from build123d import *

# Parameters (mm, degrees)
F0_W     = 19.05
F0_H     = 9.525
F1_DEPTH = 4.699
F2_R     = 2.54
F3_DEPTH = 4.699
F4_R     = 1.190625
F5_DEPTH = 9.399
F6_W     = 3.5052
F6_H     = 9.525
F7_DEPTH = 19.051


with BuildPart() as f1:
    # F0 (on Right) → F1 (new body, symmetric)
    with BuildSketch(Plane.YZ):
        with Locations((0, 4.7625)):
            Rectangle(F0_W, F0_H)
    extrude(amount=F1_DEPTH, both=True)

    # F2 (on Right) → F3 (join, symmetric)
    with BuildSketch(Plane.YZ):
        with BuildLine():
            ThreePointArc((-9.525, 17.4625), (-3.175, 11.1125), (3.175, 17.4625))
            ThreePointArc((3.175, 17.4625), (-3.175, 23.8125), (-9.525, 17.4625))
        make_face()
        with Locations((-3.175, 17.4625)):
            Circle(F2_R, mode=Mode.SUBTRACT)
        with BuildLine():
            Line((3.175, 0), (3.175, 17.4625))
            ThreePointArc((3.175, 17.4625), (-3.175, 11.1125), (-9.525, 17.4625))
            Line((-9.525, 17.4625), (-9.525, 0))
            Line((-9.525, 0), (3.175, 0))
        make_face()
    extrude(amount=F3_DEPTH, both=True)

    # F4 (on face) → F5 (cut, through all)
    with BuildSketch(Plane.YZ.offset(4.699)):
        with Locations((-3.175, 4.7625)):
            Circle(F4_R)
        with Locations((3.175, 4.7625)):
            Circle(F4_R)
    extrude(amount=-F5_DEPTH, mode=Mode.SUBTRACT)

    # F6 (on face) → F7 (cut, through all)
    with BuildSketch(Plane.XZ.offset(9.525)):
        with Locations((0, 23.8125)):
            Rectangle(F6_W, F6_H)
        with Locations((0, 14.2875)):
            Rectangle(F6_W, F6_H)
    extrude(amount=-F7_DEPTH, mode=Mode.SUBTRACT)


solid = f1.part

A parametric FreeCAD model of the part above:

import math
import FreeCAD as App
import Part
import Sketcher

V = App.Vector
Q = App.Units.Quantity

doc = App.newDocument("Part")
body = doc.addObject("PartDesign::Body", "Body")

sketch1 = body.newObject("Sketcher::SketchObject", "Sketch")
sketch1.AttachmentSupport = (doc.getObject("YZ_Plane"), [""])
sketch1.MapMode = "FlatFace"
sketch1.addGeometry([
    Part.LineSegment(V(-10, 10, 0), V(-10, 0, 0)),
    Part.LineSegment(V(-10, 0, 0), V(10, 0, 0)),
    Part.LineSegment(V(10, 0, 0), V(10, 10, 0)),
    Part.LineSegment(V(10, 10, 0), V(-10, 10, 0)),
], False)
sketch1.addConstraint([
    Sketcher.Constraint("Coincident", 0, 2, 1, 1),
    Sketcher.Constraint("Coincident", 1, 2, 2, 1),
    Sketcher.Constraint("Coincident", 2, 2, 3, 1),
    Sketcher.Constraint("Coincident", 3, 2, 0, 1),
    Sketcher.Constraint("Vertical", 0),
    Sketcher.Constraint("Horizontal", 1),
    Sketcher.Constraint("Vertical", 2),
    Sketcher.Constraint("Horizontal", 3),
    Sketcher.Constraint("Symmetric", 0, 2, 1, 2, -1, 1),
    Sketcher.Constraint("DistanceX", 1, 1, 1, 2, Q("0.75 in")),
    Sketcher.Constraint("DistanceY", 0, 2, 0, 1, Q("0.375 in")),
])
pad1 = body.newObject("PartDesign::Pad", "Pad")
pad1.Profile = sketch1
pad1.Length = Q("0.37 in")
pad1.Midplane = True

sketch2 = body.newObject("Sketcher::SketchObject", "Sketch001")
sketch2.AttachmentSupport = (doc.getObject("YZ_Plane"), [""])
sketch2.MapMode = "FlatFace"
sketch2.addGeometry([
    Part.ArcOfCircle(Part.Circle(V(-3.2, 17.5, 0), V(0, 0, 1), 6.3), math.radians(0), math.radians(180)),
    Part.LineSegment(V(-9.5, 17.5, 0), V(-9.5, 0, 0)),
    Part.LineSegment(V(-9.5, 0, 0), V(3.2, 0, 0)),
    Part.LineSegment(V(3.2, 0, 0), V(3.2, 17.5, 0)),
    Part.Circle(V(-3.2, 17.5, 0), V(0, 0, 1), 2.5),
], False)
sketch2.addConstraint([
    Sketcher.Constraint("Tangent", 0, 2, 1, 1),
    Sketcher.Constraint("Coincident", 1, 2, 2, 1),
    Sketcher.Constraint("Coincident", 2, 2, 3, 1),
    Sketcher.Constraint("Tangent", 3, 2, 0, 1),
    Sketcher.Constraint("Vertical", 1),
    Sketcher.Constraint("Horizontal", 2),
    Sketcher.Constraint("Vertical", 3),
    Sketcher.Constraint("Coincident", 4, 3, 0, 3),
    Sketcher.Constraint("PointOnObject", 1, 2, -1),
    Sketcher.Constraint("Diameter", 4, Q("0.2 in")),
    Sketcher.Constraint("Radius", 0, Q("0.25 in")),
    Sketcher.Constraint("DistanceY", 1, 2, 1, 1, Q("0.6875 in")),
    Sketcher.Constraint("DistanceX", 0, 3, -1, 1, Q("0.125 in")),
])
pad2 = body.newObject("PartDesign::Pad", "Pad001")
pad2.Profile = sketch2
pad2.Length = Q("0.37 in")
pad2.Midplane = True

sketch3 = body.newObject("Sketcher::SketchObject", "Sketch002")
sketch3.AttachmentSupport = (doc.getObject("YZ_Plane"), [""])
sketch3.MapMode = "FlatFace"
sketch3.AttachmentOffset = App.Placement(V(0, 0, 0.185 * 25.4), App.Rotation())
sketch3.addGeometry([
    Part.Circle(V(-3.2, 4.8, 0), V(0, 0, 1), 1.2),
    Part.Circle(V(3.2, 4.8, 0), V(0, 0, 1), 1.2),
], False)
sketch3.addConstraint([
    Sketcher.Constraint("Equal", 0, 1),
    Sketcher.Constraint("Symmetric", 0, 3, 1, 3, -2),
    Sketcher.Constraint("Diameter", 0, Q("0.09375 in")),
    Sketcher.Constraint("DistanceX", 0, 3, 1, 3, Q("0.25 in")),
    Sketcher.Constraint("DistanceY", -1, 1, 0, 3, Q("0.1875 in")),
])
pocket1 = body.newObject("PartDesign::Pocket", "Pocket")
pocket1.Profile = sketch3
pocket1.Type = "ThroughAll"

sketch4 = body.newObject("Sketcher::SketchObject", "Sketch003")
sketch4.AttachmentSupport = (doc.getObject("XZ_Plane"), [""])
sketch4.MapMode = "FlatFace"
sketch4.AttachmentOffset = App.Placement(V(0, 0, 0.375 * 25.4), App.Rotation())
sketch4.addGeometry([
    Part.LineSegment(V(-1.8, 28.6, 0), V(-1.8, 9.5, 0)),
    Part.LineSegment(V(-1.8, 9.5, 0), V(1.8, 9.5, 0)),
    Part.LineSegment(V(1.8, 9.5, 0), V(1.8, 28.6, 0)),
    Part.LineSegment(V(1.8, 28.6, 0), V(-1.8, 28.6, 0)),
], False)
sketch4.addConstraint([
    Sketcher.Constraint("Coincident", 0, 2, 1, 1),
    Sketcher.Constraint("Coincident", 1, 2, 2, 1),
    Sketcher.Constraint("Coincident", 2, 2, 3, 1),
    Sketcher.Constraint("Coincident", 3, 2, 0, 1),
    Sketcher.Constraint("Vertical", 0),
    Sketcher.Constraint("Horizontal", 1),
    Sketcher.Constraint("Vertical", 2),
    Sketcher.Constraint("Horizontal", 3),
    Sketcher.Constraint("DistanceY", 0, 2, 0, 1, Q("0.75 in")),
    Sketcher.Constraint("DistanceX", 1, 1, 1, 2, Q("0.138 in")),
    Sketcher.Constraint("DistanceX", 0, 2, -1, 1, Q("0.069 in")),
    Sketcher.Constraint("DistanceY", -1, 1, 0, 2, Q("0.375 in")),
])
pocket2 = body.newObject("PartDesign::Pocket", "Pocket001")
pocket2.Profile = sketch4
pocket2.Type = "ThroughAll"

doc.recompute()
